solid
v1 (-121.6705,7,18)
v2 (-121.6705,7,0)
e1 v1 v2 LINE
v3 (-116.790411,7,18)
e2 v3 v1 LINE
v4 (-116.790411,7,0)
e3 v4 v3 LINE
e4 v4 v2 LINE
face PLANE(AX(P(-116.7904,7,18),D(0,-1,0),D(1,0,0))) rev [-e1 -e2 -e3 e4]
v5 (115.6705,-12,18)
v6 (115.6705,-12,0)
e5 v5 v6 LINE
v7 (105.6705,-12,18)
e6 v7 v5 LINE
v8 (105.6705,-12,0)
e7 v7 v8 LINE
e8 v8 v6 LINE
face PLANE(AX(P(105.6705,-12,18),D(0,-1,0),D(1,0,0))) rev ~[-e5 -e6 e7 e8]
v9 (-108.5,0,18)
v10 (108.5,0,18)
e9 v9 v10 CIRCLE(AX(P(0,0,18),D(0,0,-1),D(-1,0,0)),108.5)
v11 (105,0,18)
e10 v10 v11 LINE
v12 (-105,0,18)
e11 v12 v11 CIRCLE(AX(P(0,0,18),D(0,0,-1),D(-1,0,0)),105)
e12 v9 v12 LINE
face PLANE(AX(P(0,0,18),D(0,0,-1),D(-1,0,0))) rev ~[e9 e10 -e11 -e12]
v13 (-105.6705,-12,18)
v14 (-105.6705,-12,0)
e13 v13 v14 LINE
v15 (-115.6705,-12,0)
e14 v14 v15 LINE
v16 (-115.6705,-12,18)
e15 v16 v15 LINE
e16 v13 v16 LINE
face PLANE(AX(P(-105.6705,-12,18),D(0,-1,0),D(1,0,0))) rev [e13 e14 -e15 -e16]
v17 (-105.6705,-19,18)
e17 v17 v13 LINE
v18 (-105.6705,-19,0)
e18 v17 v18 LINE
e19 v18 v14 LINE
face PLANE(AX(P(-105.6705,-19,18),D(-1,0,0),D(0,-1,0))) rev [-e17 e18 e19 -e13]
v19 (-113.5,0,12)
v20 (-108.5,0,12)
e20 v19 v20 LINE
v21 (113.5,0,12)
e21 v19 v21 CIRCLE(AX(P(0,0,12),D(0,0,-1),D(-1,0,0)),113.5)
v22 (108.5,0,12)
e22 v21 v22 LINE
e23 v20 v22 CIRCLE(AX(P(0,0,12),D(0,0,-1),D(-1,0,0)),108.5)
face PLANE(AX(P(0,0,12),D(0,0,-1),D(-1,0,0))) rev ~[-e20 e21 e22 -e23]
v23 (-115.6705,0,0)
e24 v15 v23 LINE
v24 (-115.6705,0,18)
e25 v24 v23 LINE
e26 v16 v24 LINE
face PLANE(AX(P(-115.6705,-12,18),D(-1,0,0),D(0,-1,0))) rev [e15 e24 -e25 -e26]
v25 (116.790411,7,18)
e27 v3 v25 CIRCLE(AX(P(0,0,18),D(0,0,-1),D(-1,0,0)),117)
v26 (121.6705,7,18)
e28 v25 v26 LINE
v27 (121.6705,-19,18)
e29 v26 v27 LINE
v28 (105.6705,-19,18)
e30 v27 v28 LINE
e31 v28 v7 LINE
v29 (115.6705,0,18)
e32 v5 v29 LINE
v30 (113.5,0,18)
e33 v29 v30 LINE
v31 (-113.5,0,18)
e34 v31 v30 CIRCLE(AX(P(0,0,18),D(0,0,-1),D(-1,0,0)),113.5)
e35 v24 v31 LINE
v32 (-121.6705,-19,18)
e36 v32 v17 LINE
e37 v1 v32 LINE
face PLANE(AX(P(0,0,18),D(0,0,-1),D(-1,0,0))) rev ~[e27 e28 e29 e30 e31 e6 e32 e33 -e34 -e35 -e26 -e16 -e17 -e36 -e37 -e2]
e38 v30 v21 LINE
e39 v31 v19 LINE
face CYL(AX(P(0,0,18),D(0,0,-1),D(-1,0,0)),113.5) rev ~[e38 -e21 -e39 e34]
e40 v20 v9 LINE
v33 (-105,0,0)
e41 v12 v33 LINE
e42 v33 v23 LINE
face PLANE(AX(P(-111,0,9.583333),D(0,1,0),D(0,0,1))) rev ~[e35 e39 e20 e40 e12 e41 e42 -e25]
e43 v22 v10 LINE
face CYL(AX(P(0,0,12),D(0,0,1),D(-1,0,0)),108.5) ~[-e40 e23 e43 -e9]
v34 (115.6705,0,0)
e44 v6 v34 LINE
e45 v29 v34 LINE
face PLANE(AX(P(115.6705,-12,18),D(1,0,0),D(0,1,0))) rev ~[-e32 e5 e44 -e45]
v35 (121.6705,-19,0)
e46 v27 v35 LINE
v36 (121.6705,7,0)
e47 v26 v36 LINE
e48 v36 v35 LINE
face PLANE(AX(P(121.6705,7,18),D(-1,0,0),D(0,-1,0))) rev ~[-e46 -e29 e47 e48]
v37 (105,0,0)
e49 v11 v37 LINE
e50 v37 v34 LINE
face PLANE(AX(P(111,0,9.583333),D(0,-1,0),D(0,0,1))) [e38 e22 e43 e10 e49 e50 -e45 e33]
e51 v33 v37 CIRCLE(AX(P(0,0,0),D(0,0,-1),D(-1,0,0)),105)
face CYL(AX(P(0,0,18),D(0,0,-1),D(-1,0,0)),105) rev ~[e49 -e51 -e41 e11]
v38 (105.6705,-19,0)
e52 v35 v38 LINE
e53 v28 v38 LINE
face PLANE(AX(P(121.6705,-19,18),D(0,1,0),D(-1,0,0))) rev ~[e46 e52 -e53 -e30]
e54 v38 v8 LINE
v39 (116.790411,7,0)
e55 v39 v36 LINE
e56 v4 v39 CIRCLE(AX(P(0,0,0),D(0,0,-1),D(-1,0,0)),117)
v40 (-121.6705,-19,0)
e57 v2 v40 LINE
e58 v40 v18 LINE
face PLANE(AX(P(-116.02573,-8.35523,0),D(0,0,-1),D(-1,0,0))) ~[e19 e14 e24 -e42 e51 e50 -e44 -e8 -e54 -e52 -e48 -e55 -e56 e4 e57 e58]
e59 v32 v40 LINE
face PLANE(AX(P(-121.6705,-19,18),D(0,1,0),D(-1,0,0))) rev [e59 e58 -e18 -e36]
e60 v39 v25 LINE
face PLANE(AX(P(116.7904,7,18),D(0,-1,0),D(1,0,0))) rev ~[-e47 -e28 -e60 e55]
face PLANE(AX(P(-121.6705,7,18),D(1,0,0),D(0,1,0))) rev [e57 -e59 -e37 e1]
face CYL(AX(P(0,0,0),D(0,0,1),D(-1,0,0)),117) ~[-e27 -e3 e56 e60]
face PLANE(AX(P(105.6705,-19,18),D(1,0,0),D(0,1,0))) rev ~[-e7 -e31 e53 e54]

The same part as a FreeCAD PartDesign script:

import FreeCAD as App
import Part
import Sketcher
from FreeCAD import Vector
Q = App.Units.Quantity


def add_polygon(sketch, points):
    """Adds a closed chain of lines whose ends are joined by coincident constraints."""
    first, n = sketch.GeometryCount, len(points)
    for a, b in zip(points, points[1:] + points[:1]):
        sketch.addGeometry(Part.LineSegment(App.Vector(*a, 0), App.Vector(*b, 0)), False)
    for i in range(n):
        sketch.addConstraint(Sketcher.Constraint("Coincident", first + i, 2, first + (i + 1) % n, 1))

doc = App.newDocument("Part")
body = doc.addObject("PartDesign::Body", "Body")

# Sketch on XZ plane
sketch1 = body.newObject("Sketcher::SketchObject", "Sketch")
sketch1.AttachmentSupport = (doc.getObject("XZ_Plane"), [""])
sketch1.MapMode = "FlatFace"
add_polygon(sketch1, [(-117, 18), (-117, 0), (-105, 0), (-105, 18), (-108.5, 18), (-108.5, 12), (-113.5, 12), (-113.5, 18)])  # lines 0-7
sketch1.addConstraint([
    Sketcher.Constraint("Vertical", 0),
    Sketcher.Constraint("Horizontal", 1),
    Sketcher.Constraint("Vertical", 2),
    Sketcher.Constraint("Horizontal", 3),
    Sketcher.Constraint("Vertical", 4),
    Sketcher.Constraint("Horizontal", 5),
    Sketcher.Constraint("Vertical", 6),
    Sketcher.Constraint("Horizontal", 7),
    Sketcher.Constraint("PointOnObject", 0, 2, -1),
    Sketcher.Constraint("Horizontal", 3, 2, 6, 2),
    Sketcher.Constraint("Equal", 3, 7),
    Sketcher.Constraint("DistanceX", 0, 2, -1, 1, Q("117 mm")),
    Sketcher.Constraint("DistanceX", 1, 2, -1, 1, Q("105 mm")),
    Sketcher.Constraint("DistanceX", 3, 2, -1, 1, Q("108.5 mm")),
    Sketcher.Constraint("DistanceY", 0, 2, 0, 1, Q("18 mm")),
    Sketcher.Constraint("DistanceY", 4, 2, 4, 1, Q("6 mm")),
])
revolution = body.newObject("PartDesign::Revolution", "Revolution")
revolution.Profile = sketch1
revolution.ReferenceAxis = (sketch1, ["V_Axis"])
revolution.Angle = 180
revolution.Reversed = True

# Sketch on XY plane
sketch2 = body.newObject("Sketcher::SketchObject", "Sketch001")
sketch2.AttachmentSupport = (doc.getObject("XY_Plane"), [""])
sketch2.MapMode = "FlatFace"
sketch2.AttachmentOffset = App.Placement(Vector(0, 0, 18), App.Rotation())
add_polygon(sketch2, [(116.8, 7), (116.8, 0), (115.7, 0), (115.7, -12), (105.7, -12), (105.7, -19), (121.7, -19), (121.7, 7)])  # lines 0-7
sketch2.addConstraint([
    Sketcher.Constraint("Vertical", 0),
    Sketcher.Constraint("Horizontal", 1),
    Sketcher.Constraint("Vertical", 2),
    Sketcher.Constraint("Horizontal", 3),
    Sketcher.Constraint("Vertical", 4),
    Sketcher.Constraint("Horizontal", 5),
    Sketcher.Constraint("Vertical", 6),
    Sketcher.Constraint("Horizontal", 7),
    Sketcher.Constraint("PointOnObject", 0, 2, -1),
    Sketcher.Constraint("Equal", 0, 4),
    Sketcher.Constraint("DistanceX", 3, 2, 3, 1, Q("10 mm")),
    Sketcher.Constraint("DistanceX", 5, 1, 5, 2, Q("16 mm")),
    Sketcher.Constraint("DistanceY", 0, 2, 0, 1, Q("7 mm")),
    Sketcher.Constraint("DistanceY", 2, 2, 2, 1, Q("12 mm")),
    Sketcher.Constraint("DistanceX", 1, 2, 1, 1, Q("1.12 mm")),
    Sketcher.Constraint("DistanceX", -1, 1, 1, 2, Q("115.6705 mm")),
])
pad1 = body.newObject("PartDesign::Pad", "Pad")
pad1.Profile = sketch2
pad1.Length = 18
pad1.Reversed = True
doc.recompute()

mirrored = body.newObject("PartDesign::Mirrored", "Mirrored")
mirrored.Originals = [pad1]
mirrored.MirrorPlane = (doc.getObject("YZ_Plane"), [""])
body.Tip = mirrored

doc.recompute()
